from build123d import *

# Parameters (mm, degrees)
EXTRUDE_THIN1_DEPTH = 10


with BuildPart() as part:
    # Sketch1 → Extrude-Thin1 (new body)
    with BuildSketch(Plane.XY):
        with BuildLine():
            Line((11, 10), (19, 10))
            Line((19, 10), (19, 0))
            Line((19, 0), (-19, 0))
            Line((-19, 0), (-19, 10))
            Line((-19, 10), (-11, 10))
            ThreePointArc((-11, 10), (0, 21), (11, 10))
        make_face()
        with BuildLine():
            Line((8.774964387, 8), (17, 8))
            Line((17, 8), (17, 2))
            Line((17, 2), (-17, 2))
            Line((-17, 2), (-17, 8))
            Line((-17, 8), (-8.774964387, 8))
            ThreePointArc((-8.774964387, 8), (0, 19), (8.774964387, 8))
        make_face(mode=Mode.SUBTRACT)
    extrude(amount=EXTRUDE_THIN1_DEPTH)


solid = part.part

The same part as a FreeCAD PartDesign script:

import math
import FreeCAD as App
import Part
import Sketcher
from FreeCAD import Vector
Q = App.Units.Quantity

doc = App.newDocument("Part")
body = doc.addObject("PartDesign::Body", "Body")

# Sketch on XY plane
sketch1 = body.newObject("Sketcher::SketchObject", "Sketch")
sketch1.AttachmentSupport = (doc.getObject("XY_Plane"), [""])
sketch1.MapMode = "FlatFace"
sketch1.addGeometry(Part.LineSegment(Vector(19, 10, 0), Vector(11, 10, 0)), False)
sketch1.addGeometry(Part.ArcOfCircle(Part.Circle(Vector(0, 10, 0), Vector(0, 0, 1), 11), math.radians(0), math.radians(180)), False)
sketch1.addGeometry(Part.LineSegment(Vector(-11, 10, 0), Vector(-19, 10, 0)), False)
sketch1.addGeometry(Part.LineSegment(Vector(-19, 10, 0), Vector(-19, 0, 0)), False)
sketch1.addGeometry(Part.LineSegment(Vector(-19, 0, 0), Vector(19, 0, 0)), False)
sketch1.addGeometry(Part.LineSegment(Vector(19, 0, 0), Vector(19, 10, 0)), False)
sketch1.addGeometry(Part.LineSegment(Vector(9, 8, 0), Vector(17, 8, 0)), False)
sketch1.addGeometry(Part.LineSegment(Vector(17, 8, 0), Vector(17, 2, 0)), False)
sketch1.addGeometry(Part.LineSegment(Vector(17, 2, 0), Vector(-17, 2, 0)), False)
sketch1.addGeometry(Part.LineSegment(Vector(-17, 2, 0), Vector(-17, 8, 0)), False)
sketch1.addGeometry(Part.LineSegment(Vector(-17, 8, 0), Vector(-9, 8, 0)), False)
sketch1.addGeometry(Part.ArcOfCircle(Part.Circle(Vector(0, 10, 0), Vector(0, 0, 1), 9), math.radians(-13), math.radians(193)), False)
sketch1.addConstraint(Sketcher.Constraint("Coincident", 0, 2, 1, 1))
sketch1.addConstraint(Sketcher.Constraint("Coincident", 1, 2, 2, 1))
sketch1.addConstraint(Sketcher.Constraint("Coincident", 2, 2, 3, 1))
sketch1.addConstraint(Sketcher.Constraint("Coincident", 3, 2, 4, 1))
sketch1.addConstraint(Sketcher.Constraint("Coincident", 4, 2, 5, 1))
sketch1.addConstraint(Sketcher.Constraint("Coincident", 5, 2, 0, 1))
sketch1.addConstraint(Sketcher.Constraint("Coincident", 6, 2, 7, 1))
sketch1.addConstraint(Sketcher.Constraint("Coincident", 7, 2, 8, 1))
sketch1.addConstraint(Sketcher.Constraint("Coincident", 8, 2, 9, 1))
sketch1.addConstraint(Sketcher.Constraint("Coincident", 9, 2, 10, 1))
sketch1.addConstraint(Sketcher.Constraint("Coincident", 10, 2, 11, 2))
sketch1.addConstraint(Sketcher.Constraint("Coincident", 11, 1, 6, 1))
sketch1.addConstraint(Sketcher.Constraint("Horizontal", 0))
sketch1.addConstraint(Sketcher.Constraint("Horizontal", 2))
sketch1.addConstraint(Sketcher.Constraint("Vertical", 3))
sketch1.addConstraint(Sketcher.Constraint("Horizontal", 4))
sketch1.addConstraint(Sketcher.Constraint("Vertical", 5))
sketch1.addConstraint(Sketcher.Constraint("Horizontal", 6))
sketch1.addConstraint(Sketcher.Constraint("Vertical", 7))
sketch1.addConstraint(Sketcher.Constraint("Horizontal", 8))
sketch1.addConstraint(Sketcher.Constraint("Vertical", 9))
sketch1.addConstraint(Sketcher.Constraint("Horizontal", 10))
sketch1.addConstraint(Sketcher.Constraint("Coincident", 11, 3, 1, 3))
sketch1.addConstraint(Sketcher.Constraint("Symmetric", 3, 2, 4, 2, -1, 1))
sketch1.addConstraint(Sketcher.Constraint("Symmetric", 0, 2, 1, 2, -2))
sketch1.addConstraint(Sketcher.Constraint("Symmetric", 6, 2, 9, 2, -2))
sketch1.addConstraint(Sketcher.Constraint("Horizontal", 11, 3, 0, 2))
sketch1.addConstraint(Sketcher.Constraint("Radius", 1, Q("11 mm")))
sketch1.addConstraint(Sketcher.Constraint("Radius", 11, Q("9 mm")))
sketch1.addConstraint(Sketcher.Constraint("DistanceX", 0, 2, 0, 1, Q("8 mm")))
sketch1.addConstraint(Sketcher.Constraint("DistanceX", 8, 2, 8, 1, Q("34 mm")))
sketch1.addConstraint(Sketcher.Constraint("DistanceY", 3, 2, 3, 1, Q("10 mm")))
sketch1.addConstraint(Sketcher.Constraint("DistanceY", 7, 2, 7, 1, Q("6 mm")))
sketch1.addConstraint(Sketcher.Constraint("DistanceY", -1, 1, 6, 2, Q("8 mm")))
pad1 = body.newObject("PartDesign::Pad", "Pad")
pad1.Profile = sketch1
pad1.Length = 10

doc.recompute()
